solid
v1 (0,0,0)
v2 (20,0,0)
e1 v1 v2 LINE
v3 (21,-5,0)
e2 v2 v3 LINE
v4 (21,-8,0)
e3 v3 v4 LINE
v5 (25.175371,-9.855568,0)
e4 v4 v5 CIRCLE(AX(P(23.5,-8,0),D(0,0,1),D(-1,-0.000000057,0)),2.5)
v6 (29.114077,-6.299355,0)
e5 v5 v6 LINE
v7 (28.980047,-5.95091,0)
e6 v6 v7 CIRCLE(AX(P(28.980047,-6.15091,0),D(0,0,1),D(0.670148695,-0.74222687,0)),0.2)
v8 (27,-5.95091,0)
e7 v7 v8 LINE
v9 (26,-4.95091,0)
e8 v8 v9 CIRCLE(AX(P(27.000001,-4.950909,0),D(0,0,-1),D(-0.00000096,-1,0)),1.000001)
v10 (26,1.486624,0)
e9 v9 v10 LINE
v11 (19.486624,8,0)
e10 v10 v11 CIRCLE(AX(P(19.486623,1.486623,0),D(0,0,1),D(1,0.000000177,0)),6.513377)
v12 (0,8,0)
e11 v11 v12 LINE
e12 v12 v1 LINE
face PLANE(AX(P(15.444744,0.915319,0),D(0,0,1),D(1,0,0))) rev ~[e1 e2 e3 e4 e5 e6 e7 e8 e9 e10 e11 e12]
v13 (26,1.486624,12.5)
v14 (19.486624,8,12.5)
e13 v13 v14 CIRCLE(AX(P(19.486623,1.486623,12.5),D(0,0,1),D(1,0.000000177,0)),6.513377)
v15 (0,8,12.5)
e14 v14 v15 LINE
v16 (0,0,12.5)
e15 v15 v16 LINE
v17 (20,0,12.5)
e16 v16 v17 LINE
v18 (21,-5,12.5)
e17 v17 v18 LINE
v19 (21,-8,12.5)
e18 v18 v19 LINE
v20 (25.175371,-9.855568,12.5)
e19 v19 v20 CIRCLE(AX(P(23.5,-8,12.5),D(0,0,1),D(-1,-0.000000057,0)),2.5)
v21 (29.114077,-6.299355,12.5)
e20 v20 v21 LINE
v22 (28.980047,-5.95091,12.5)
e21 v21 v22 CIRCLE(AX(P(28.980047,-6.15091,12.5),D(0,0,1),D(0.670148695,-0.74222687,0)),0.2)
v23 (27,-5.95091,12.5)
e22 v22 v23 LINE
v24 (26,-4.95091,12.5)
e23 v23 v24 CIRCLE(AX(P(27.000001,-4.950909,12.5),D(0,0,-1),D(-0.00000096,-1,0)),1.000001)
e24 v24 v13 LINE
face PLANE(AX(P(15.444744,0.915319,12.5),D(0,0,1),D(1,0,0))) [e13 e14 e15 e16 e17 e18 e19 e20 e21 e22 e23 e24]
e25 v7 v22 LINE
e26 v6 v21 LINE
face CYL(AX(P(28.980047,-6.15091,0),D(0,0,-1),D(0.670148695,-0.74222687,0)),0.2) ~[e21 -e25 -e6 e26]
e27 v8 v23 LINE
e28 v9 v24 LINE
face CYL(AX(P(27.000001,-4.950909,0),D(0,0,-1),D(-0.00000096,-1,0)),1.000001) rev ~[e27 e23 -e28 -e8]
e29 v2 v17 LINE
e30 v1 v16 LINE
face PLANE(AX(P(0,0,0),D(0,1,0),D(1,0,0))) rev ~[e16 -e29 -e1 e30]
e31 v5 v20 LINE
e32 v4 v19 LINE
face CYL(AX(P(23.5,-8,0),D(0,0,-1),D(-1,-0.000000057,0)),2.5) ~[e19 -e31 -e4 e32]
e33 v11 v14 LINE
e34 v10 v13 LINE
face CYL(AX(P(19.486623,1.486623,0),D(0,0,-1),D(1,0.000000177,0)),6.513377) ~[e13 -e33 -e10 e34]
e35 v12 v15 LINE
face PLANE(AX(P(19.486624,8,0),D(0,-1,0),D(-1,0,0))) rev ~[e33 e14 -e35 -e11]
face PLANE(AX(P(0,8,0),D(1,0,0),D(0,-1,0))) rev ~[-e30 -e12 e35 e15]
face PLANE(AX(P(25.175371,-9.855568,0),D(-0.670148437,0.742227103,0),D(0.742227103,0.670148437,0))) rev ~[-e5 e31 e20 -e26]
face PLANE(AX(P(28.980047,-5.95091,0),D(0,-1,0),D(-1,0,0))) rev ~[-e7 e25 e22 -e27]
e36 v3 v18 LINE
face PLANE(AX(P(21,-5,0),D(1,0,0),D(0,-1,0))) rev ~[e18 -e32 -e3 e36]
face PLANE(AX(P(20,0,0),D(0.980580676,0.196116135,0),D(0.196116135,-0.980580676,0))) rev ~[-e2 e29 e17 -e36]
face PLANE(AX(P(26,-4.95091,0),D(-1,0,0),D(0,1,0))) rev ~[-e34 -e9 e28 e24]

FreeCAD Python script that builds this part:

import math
import FreeCAD as App
import Part
import Sketcher
Q = App.Units.Quantity

doc = App.newDocument("Part")
body = doc.addObject("PartDesign::Body", "Body")

# Sketch on XY plane
sketch1 = body.newObject("Sketcher::SketchObject", "Sketch")
sketch1.AttachmentSupport = (doc.getObject("XY_Plane"), [""])
sketch1.MapMode = "FlatFace"
sketch1.addGeometry(Part.LineSegment(App.Vector(0, 8, 0), App.Vector(0, 0, 0)), False)
sketch1.addGeometry(Part.LineSegment(App.Vector(0, 0, 0), App.Vector(20, 0, 0)), False)
sketch1.addGeometry(Part.LineSegment(App.Vector(20, 0, 0), App.Vector(21, -5, 0)), False)
sketch1.addGeometry(Part.LineSegment(App.Vector(21, -5, 0), App.Vector(21, -8, 0)), False)
sketch1.addGeometry(Part.ArcOfCircle(Part.Circle(App.Vector(23.5, -8, 0), App.Vector(0, 0, 1), 2.5), math.radians(-180), math.radians(-48)), False)
sketch1.addGeometry(Part.LineSegment(App.Vector(25.18, -9.86, 0), App.Vector(29.11, -6.3, 0)), False)
sketch1.addGeometry(Part.ArcOfCircle(Part.Circle(App.Vector(28.98, -6.15, 0), App.Vector(0, 0, 1), 0.2), math.radians(-48), math.radians(90)), False)
sketch1.addGeometry(Part.LineSegment(App.Vector(28.98, -5.95, 0), App.Vector(27, -5.95, 0)), False)
sketch1.addGeometry(Part.ArcOfCircle(Part.Circle(App.Vector(27, -4.95, 0), App.Vector(0, 0, 1), 1), math.radians(-180), math.radians(-90)), False)
sketch1.addGeometry(Part.LineSegment(App.Vector(26, -4.95, 0), App.Vector(26, 1.49, 0)), False)
sketch1.addGeometry(Part.ArcOfCircle(Part.Circle(App.Vector(19.49, 1.49, 0), App.Vector(0, 0, 1), 6.51), math.radians(0), math.radians(90)), False)
sketch1.addGeometry(Part.LineSegment(App.Vector(19.49, 8, 0), App.Vector(0, 8, 0)), False)
sketch1.addConstraint(Sketcher.Constraint("Coincident", 0, 2, 1, 1))
sketch1.addConstraint(Sketcher.Constraint("Coincident", 1, 2, 2, 1))
sketch1.addConstraint(Sketcher.Constraint("Coincident", 2, 2, 3, 1))
sketch1.addConstraint(Sketcher.Constraint("Tangent", 3, 2, 4, 1))
sketch1.addConstraint(Sketcher.Constraint("Tangent", 4, 2, 5, 1))
sketch1.addConstraint(Sketcher.Constraint("Tangent", 5, 2, 6, 1))
sketch1.addConstraint(Sketcher.Constraint("Coincident", 6, 2, 7, 1))
sketch1.addConstraint(Sketcher.Constraint("Tangent", 7, 2, 8, 2))
sketch1.addConstraint(Sketcher.Constraint("Tangent", 8, 1, 9, 1))
sketch1.addConstraint(Sketcher.Constraint("Tangent", 9, 2, 10, 1))
sketch1.addConstraint(Sketcher.Constraint("Tangent", 10, 2, 11, 1))
sketch1.addConstraint(Sketcher.Constraint("Coincident", 11, 2, 0, 1))
sketch1.addConstraint(Sketcher.Constraint("Vertical", 0))
sketch1.addConstraint(Sketcher.Constraint("Horizontal", 1))
sketch1.addConstraint(Sketcher.Constraint("Vertical", 3))
sketch1.addConstraint(Sketcher.Constraint("Horizontal", 7))
sketch1.addConstraint(Sketcher.Constraint("Vertical", 9))
sketch1.addConstraint(Sketcher.Constraint("Horizontal", 11))
sketch1.addConstraint(Sketcher.Constraint("Coincident", 0, 2, -1, 1))
sketch1.addConstraint(Sketcher.Constraint("Radius", 8, Q("1.000001 mm")))
sketch1.addConstraint(Sketcher.Constraint("Radius", 4, Q("2.5 mm")))
sketch1.addConstraint(Sketcher.Constraint("Radius", 6, Q("0.2 mm")))
sketch1.addConstraint(Sketcher.Constraint("DistanceX", 1, 1, 1, 2, Q("20 mm")))
sketch1.addConstraint(Sketcher.Constraint("DistanceY", 0, 2, 0, 1, Q("8 mm")))
sketch1.addConstraint(Sketcher.Constraint("DistanceY", 3, 2, 3, 1, Q("3 mm")))
sketch1.addConstraint(Sketcher.Constraint("DistanceY", 4, 3, -1, 1, Q("8 mm")))
sketch1.addConstraint(Sketcher.Constraint("DistanceX", -1, 1, 8, 3, Q("27.000001 mm")))
sketch1.addConstraint(Sketcher.Constraint("DistanceX", -1, 1, 2, 2, Q("21 mm")))
sketch1.addConstraint(Sketcher.Constraint("Radius", 10, Q("6.513377 mm")))
sketch1.addConstraint(Sketcher.Constraint("DistanceX", 7, 2, 7, 1, Q("1.980047 mm")))
sketch1.addConstraint(Sketcher.Constraint("DistanceY", 9, 1, 9, 2, Q("6.437534 mm")))
sketch1.addConstraint(Sketcher.Constraint("DistanceX", -1, 1, 4, 2, Q("25.175371 mm")))
pad1 = body.newObject("PartDesign::Pad", "Pad")
pad1.Profile = sketch1
pad1.Length = 12.5

doc.recompute()
